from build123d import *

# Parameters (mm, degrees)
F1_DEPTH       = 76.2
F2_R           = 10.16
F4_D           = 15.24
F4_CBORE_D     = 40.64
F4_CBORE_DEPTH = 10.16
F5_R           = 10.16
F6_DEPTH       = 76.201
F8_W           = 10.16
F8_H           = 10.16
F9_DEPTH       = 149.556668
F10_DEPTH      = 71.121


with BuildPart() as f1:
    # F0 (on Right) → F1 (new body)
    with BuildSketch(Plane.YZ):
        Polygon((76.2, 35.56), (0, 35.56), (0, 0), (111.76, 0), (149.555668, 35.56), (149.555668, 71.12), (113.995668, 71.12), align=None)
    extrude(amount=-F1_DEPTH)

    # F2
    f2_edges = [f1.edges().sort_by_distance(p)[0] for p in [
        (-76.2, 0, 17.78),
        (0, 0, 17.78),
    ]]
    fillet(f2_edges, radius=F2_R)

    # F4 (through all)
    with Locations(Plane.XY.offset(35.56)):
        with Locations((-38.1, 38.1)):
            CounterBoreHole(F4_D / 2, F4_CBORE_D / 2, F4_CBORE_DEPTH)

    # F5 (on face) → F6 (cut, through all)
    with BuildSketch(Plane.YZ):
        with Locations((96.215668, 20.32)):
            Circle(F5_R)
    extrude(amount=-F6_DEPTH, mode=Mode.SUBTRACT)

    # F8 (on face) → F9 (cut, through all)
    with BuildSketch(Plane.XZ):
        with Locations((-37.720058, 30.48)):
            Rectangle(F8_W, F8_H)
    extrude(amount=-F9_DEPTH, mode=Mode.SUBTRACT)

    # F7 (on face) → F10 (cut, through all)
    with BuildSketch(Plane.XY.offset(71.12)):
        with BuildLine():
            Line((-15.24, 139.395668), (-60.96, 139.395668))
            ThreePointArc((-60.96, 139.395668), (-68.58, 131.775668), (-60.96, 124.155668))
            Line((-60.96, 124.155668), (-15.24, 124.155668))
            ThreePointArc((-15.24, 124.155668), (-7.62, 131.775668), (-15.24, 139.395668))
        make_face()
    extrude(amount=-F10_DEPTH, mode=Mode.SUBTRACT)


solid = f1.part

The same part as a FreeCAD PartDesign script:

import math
import FreeCAD as App
import Part
import Sketcher
Q = App.Units.Quantity


def edges_at(feature, points):
    """Names of the edges that pass closest to the given points."""
    edges = feature.Shape.Edges
    near = lambda p: min(range(len(edges)), key=lambda i: edges[i].distToShape(Part.Vertex(*p))[0])
    return sorted({f"Edge{near(p) + 1}" for p in points})

doc = App.newDocument("Part")
body = doc.addObject("PartDesign::Body", "Body")

sketch1 = doc.addObject("Sketcher::SketchObject", "Sketch")
body.addObject(sketch1)
sketch1.AttachmentSupport = (doc.YZ_Plane, [""])
sketch1.MapMode = "FlatFace"
sketch1.addGeometry(Part.LineSegment(App.Vector(76.2, 35.56, 0), App.Vector(0, 35.56, 0)), False)
sketch1.addGeometry(Part.LineSegment(App.Vector(0, 35.56, 0), App.Vector(0, 0, 0)), False)
sketch1.addGeometry(Part.LineSegment(App.Vector(0, 0, 0), App.Vector(111.76, 0, 0)), False)
sketch1.addGeometry(Part.LineSegment(App.Vector(111.76, 0, 0), App.Vector(149.555668, 35.56, 0)), False)
sketch1.addGeometry(Part.LineSegment(App.Vector(149.555668, 35.56, 0), App.Vector(149.555668, 71.12, 0)), False)
sketch1.addGeometry(Part.LineSegment(App.Vector(149.555668, 71.12, 0), App.Vector(113.995668, 71.12, 0)), False)
sketch1.addGeometry(Part.LineSegment(App.Vector(113.995668, 71.12, 0), App.Vector(76.2, 35.56, 0)), False)
sketch1.addConstraint(Sketcher.Constraint("Coincident", 0, 2, 1, 1))
sketch1.addConstraint(Sketcher.Constraint("Coincident", 1, 2, 2, 1))
sketch1.addConstraint(Sketcher.Constraint("Coincident", 2, 2, 3, 1))
sketch1.addConstraint(Sketcher.Constraint("Coincident", 3, 2, 4, 1))
sketch1.addConstraint(Sketcher.Constraint("Coincident", 4, 2, 5, 1))
sketch1.addConstraint(Sketcher.Constraint("Coincident", 5, 2, 6, 1))
sketch1.addConstraint(Sketcher.Constraint("Coincident", 6, 2, 0, 1))
sketch1.addConstraint(Sketcher.Constraint("Horizontal", 0))
sketch1.addConstraint(Sketcher.Constraint("Vertical", 1))
sketch1.addConstraint(Sketcher.Constraint("Horizontal", 2))
sketch1.addConstraint(Sketcher.Constraint("Vertical", 4))
sketch1.addConstraint(Sketcher.Constraint("Horizontal", 5))
sketch1.addConstraint(Sketcher.Constraint("Coincident", 1, 2, -1, 1))
sketch1.addConstraint(Sketcher.Constraint("Parallel", 3, 6))
sketch1.addConstraint(Sketcher.Constraint("Horizontal", 0, 2, 3, 2))
sketch1.addConstraint(Sketcher.Constraint("Equal", 5, 1))
sketch1.addConstraint(Sketcher.Constraint("Equal", 1, 4))
sketch1.addConstraint(Sketcher.Constraint("DistanceX", 0, 2, 0, 1, Q("3 in")))
sketch1.addConstraint(Sketcher.Constraint("DistanceX", 2, 1, 2, 2, Q("4.4 in")))
sketch1.addConstraint(Sketcher.Constraint("DistanceX", -1, 1, 3, 2, Q("149.555668 mm")))
pad1 = doc.addObject("PartDesign::Pad", "Pad")
body.addObject(pad1)
pad1.Profile = sketch1
pad1.Length = Q("3 in")
pad1.Reversed = True
doc.recompute()

fillet = doc.addObject("PartDesign::Fillet", "Fillet")
body.addObject(fillet)
fillet.Base = (pad1, edges_at(pad1, [(-76.2, 0, 17.78), (0, 0, 17.78)]))
fillet.Radius = Q("0.4 in")

sketch2 = doc.addObject("Sketcher::SketchObject", "Sketch001")
body.addObject(sketch2)
sketch2.AttachmentSupport = (doc.XY_Plane, [""])
sketch2.MapMode = "FlatFace"
sketch2.AttachmentOffset = App.Placement(App.Vector(0, 0, 1.4 * 25.4), App.Rotation())
sketch2.addGeometry(Part.Circle(App.Vector(-38.1, 38.1, 0), App.Vector(0, 0, 1), 7.62), False)
sketch2.addConstraint(Sketcher.Constraint("Diameter", 0, Q("0.6 in")))
sketch2.addConstraint(Sketcher.Constraint("DistanceX", 0, 3, -1, 1, Q("1.5 in")))
sketch2.addConstraint(Sketcher.Constraint("DistanceY", -1, 1, 0, 3, Q("1.5 in")))
doc.recompute()
hole = doc.addObject("PartDesign::Hole", "Hole")
body.addObject(hole)
hole.Profile = sketch2
hole.ThreadType = "None"
hole.Diameter = Q("0.6 in")
hole.DepthType = "ThroughAll"
hole.HoleCutType = "Counterbore"
hole.HoleCutDiameter = Q("1.6 in")
hole.HoleCutDepth = Q("0.4 in")

sketch3 = doc.addObject("Sketcher::SketchObject", "Sketch002")
body.addObject(sketch3)
sketch3.AttachmentSupport = (doc.YZ_Plane, [""])
sketch3.MapMode = "FlatFace"
sketch3.addGeometry(Part.Circle(App.Vector(96.215668, 20.32, 0), App.Vector(0, 0, 1), 10.16), False)
sketch3.addConstraint(Sketcher.Constraint("Diameter", 0, Q("0.8 in")))
sketch3.addConstraint(Sketcher.Constraint("DistanceY", -1, 1, 0, 3, Q("0.8 in")))
sketch3.addConstraint(Sketcher.Constraint("DistanceX", -1, 1, 0, 3, Q("96.215668 mm")))
pocket1 = doc.addObject("PartDesign::Pocket", "Pocket")
body.addObject(pocket1)
pocket1.Profile = sketch3
pocket1.Type = "ThroughAll"

sketch4 = doc.addObject("Sketcher::SketchObject", "Sketch003")
body.addObject(sketch4)
sketch4.AttachmentSupport = (doc.XZ_Plane, [""])
sketch4.MapMode = "FlatFace"
sketch4.addGeometry(Part.LineSegment(App.Vector(-42.800058, 35.56, 0), App.Vector(-42.800058, 25.4, 0)), False)
sketch4.addGeometry(Part.LineSegment(App.Vector(-42.800058, 25.4, 0), App.Vector(-32.640058, 25.4, 0)), False)
sketch4.addGeometry(Part.LineSegment(App.Vector(-32.640058, 25.4, 0), App.Vector(-32.640058, 35.56, 0)), False)
sketch4.addGeometry(Part.LineSegment(App.Vector(-32.640058, 35.56, 0), App.Vector(-42.800058, 35.56, 0)), False)
sketch4.addConstraint(Sketcher.Constraint("Coincident", 0, 2, 1, 1))
sketch4.addConstraint(Sketcher.Constraint("Coincident", 1, 2, 2, 1))
sketch4.addConstraint(Sketcher.Constraint("Coincident", 2, 2, 3, 1))
sketch4.addConstraint(Sketcher.Constraint("Coincident", 3, 2, 0, 1))
sketch4.addConstraint(Sketcher.Constraint("Vertical", 0))
sketch4.addConstraint(Sketcher.Constraint("Horizontal", 1))
sketch4.addConstraint(Sketcher.Constraint("Vertical", 2))
sketch4.addConstraint(Sketcher.Constraint("Horizontal", 3))
sketch4.addConstraint(Sketcher.Constraint("Equal", 3, 0))
sketch4.addConstraint(Sketcher.Constraint("DistanceX", 1, 1, 1, 2, Q("0.4 in")))
sketch4.addConstraint(Sketcher.Constraint("DistanceY", -1, 1, 0, 2, Q("1 in")))
sketch4.addConstraint(Sketcher.Constraint("DistanceX", 1, 2, -1, 1, Q("32.640058 mm")))
pocket2 = doc.addObject("PartDesign::Pocket", "Pocket001")
body.addObject(pocket2)
pocket2.Profile = sketch4
pocket2.Type = "ThroughAll"

sketch5 = doc.addObject("Sketcher::SketchObject", "Sketch004")
body.addObject(sketch5)
sketch5.AttachmentSupport = (doc.XY_Plane, [""])
sketch5.MapMode = "FlatFace"
sketch5.AttachmentOffset = App.Placement(App.Vector(0, 0, 2.8 * 25.4), App.Rotation())
sketch5.addGeometry(Part.LineSegment(App.Vector(-15.24, 139.395668, 0), App.Vector(-60.96, 139.395668, 0)), False)
sketch5.addGeometry(Part.ArcOfCircle(Part.Circle(App.Vector(-60.96, 131.775668, 0), App.Vector(0, 0, 1), 7.62), math.radians(90), math.radians(270)), False)
sketch5.addGeometry(Part.LineSegment(App.Vector(-60.96, 124.155668, 0), App.Vector(-15.24, 124.155668, 0)), False)
sketch5.addGeometry(Part.ArcOfCircle(Part.Circle(App.Vector(-15.24, 131.775668, 0), App.Vector(0, 0, 1), 7.62), math.radians(-90), math.radians(90)), False)
sketch5.addConstraint(Sketcher.Constraint("Tangent", 0, 2, 1, 1))
sketch5.addConstraint(Sketcher.Constraint("Tangent", 1, 2, 2, 1))
sketch5.addConstraint(Sketcher.Constraint("Tangent", 2, 2, 3, 1))
sketch5.addConstraint(Sketcher.Constraint("Tangent", 3, 2, 0, 1))
sketch5.addConstraint(Sketcher.Constraint("Horizontal", 0))
sketch5.addConstraint(Sketcher.Constraint("Horizontal", 2))
sketch5.addConstraint(Sketcher.Constraint("Radius", 1, Q("0.3 in")))
sketch5.addConstraint(Sketcher.Constraint("DistanceX", 0, 2, 0, 1, Q("1.8 in")))
sketch5.addConstraint(Sketcher.Constraint("DistanceX", 1, 3, -1, 1, Q("2.4 in")))
sketch5.addConstraint(Sketcher.Constraint("DistanceY", -1, 1, 1, 3, Q("131.775668 mm")))
pocket3 = doc.addObject("PartDesign::Pocket", "Pocket002")
body.addObject(pocket3)
pocket3.Profile = sketch5
pocket3.Type = "ThroughAll"

doc.recompute()
